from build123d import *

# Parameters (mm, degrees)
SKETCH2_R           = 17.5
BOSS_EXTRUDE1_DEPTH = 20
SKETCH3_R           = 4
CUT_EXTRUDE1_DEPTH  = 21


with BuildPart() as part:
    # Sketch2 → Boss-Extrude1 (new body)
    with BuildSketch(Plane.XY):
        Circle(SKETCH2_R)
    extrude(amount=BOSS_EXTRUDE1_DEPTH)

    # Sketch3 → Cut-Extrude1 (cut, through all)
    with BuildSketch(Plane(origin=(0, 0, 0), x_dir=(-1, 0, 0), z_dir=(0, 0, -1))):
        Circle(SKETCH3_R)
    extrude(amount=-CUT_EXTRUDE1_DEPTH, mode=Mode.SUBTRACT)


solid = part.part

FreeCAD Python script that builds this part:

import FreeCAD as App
import Part
import Sketcher

V = App.Vector

doc = App.newDocument("Part")
body = doc.addObject("PartDesign::Body", "Body")

# Sketch on XY plane
sketch1 = doc.addObject("Sketcher::SketchObject", "Sketch")
body.addObject(sketch1)
sketch1.AttachmentSupport = (doc.XY_Plane, [""])
sketch1.MapMode = "FlatFace"
sketch1.addGeometry(Part.Circle(V(0, 0, 0), V(0, 0, 1), 18), False)
sketch1.addConstraint([
    Sketcher.Constraint("Coincident", 0, 3, -1, 1),
    Sketcher.Constraint("Diameter", 0, 35.0),
])
pad1 = doc.addObject("PartDesign::Pad", "Pad")
body.addObject(pad1)
pad1.Profile = sketch1
pad1.Length = 20

# Sketch on XY plane
sketch2 = doc.addObject("Sketcher::SketchObject", "Sketch001")
body.addObject(sketch2)
sketch2.AttachmentSupport = (doc.XY_Plane, [""])
sketch2.MapMode = "FlatFace"
sketch2.addGeometry(Part.Circle(V(0, 0, 0), V(0, 0, 1), 4), False)
sketch2.addConstraint([
    Sketcher.Constraint("Coincident", 0, 3, -1, 1),
    Sketcher.Constraint("Diameter", 0, 8.0),
])
pocket1 = doc.addObject("PartDesign::Pocket", "Pocket")
body.addObject(pocket1)
pocket1.Profile = sketch2
pocket1.Type = "ThroughAll"
pocket1.Reversed = True

doc.recompute()
